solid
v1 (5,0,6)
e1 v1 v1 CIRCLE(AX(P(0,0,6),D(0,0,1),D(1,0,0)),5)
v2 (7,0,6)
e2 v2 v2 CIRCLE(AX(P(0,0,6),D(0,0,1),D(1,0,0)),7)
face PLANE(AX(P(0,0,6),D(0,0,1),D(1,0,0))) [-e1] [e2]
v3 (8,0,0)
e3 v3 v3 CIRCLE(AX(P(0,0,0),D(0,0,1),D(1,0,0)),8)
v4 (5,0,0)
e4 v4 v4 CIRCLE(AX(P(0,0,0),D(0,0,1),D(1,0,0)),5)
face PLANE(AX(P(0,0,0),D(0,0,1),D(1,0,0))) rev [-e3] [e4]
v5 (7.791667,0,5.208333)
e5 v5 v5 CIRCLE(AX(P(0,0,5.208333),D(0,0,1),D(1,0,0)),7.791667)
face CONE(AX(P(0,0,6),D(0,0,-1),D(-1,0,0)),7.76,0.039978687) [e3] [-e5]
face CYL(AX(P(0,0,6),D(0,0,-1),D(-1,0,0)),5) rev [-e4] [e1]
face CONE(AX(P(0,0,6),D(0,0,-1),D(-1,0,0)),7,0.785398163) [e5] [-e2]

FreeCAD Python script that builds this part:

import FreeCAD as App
import Part
import Sketcher

V = App.Vector


def edges_at(feature, points):
    """Names of the edges that pass closest to the given points."""
    edges = feature.Shape.Edges
    near = lambda p: min(range(len(edges)), key=lambda i: edges[i].distToShape(Part.Vertex(*p))[0])
    return sorted({f"Edge{near(p) + 1}" for p in points})

doc = App.newDocument("Part")
params = doc.addObject("Spreadsheet::Sheet", "Params")
for row, (alias, value) in enumerate([
    ("sketch1_diameter", "16 mm"),
    ("sketch1_diameter2", "10 mm"),
    ("pad1_length", "6 mm"),
    ("chamfer_size", "1 mm"),
    ("sketch2_height", "6 mm"),
    ("sketch2_width", "0.24 mm"),
    ("groove_angle", "360 deg"),
], start=1):
    params.set(f"A{row}", alias)
    params.set(f"B{row}", "=" + value)
    params.setAlias(f"B{row}", alias)

body = doc.addObject("PartDesign::Body", "Body")

# Sketch on XY plane
sketch1 = body.newObject("Sketcher::SketchObject", "Sketch")
sketch1.AttachmentSupport = (doc.getObject("XY_Plane"), [""])
sketch1.MapMode = "FlatFace"
sketch1.addGeometry(Part.Circle(V(0, 0, 0), V(0, 0, 1), 8), False)
sketch1.addGeometry(Part.Circle(V(0, 0, 0), V(0, 0, 1), 5), False)
sketch1.addConstraint(Sketcher.Constraint("Coincident", 0, 3, -1, 1))
sketch1.addConstraint(Sketcher.Constraint("Coincident", 1, 3, -1, 1))
sketch1.addConstraint(Sketcher.Constraint("Diameter", 0, 16.0))
sketch1.addConstraint(Sketcher.Constraint("Diameter", 1, 10.0))
sketch1.setExpression("Constraints[2]", "Params.sketch1_diameter")
sketch1.setExpression("Constraints[3]", "Params.sketch1_diameter2")
pad1 = body.newObject("PartDesign::Pad", "Pad")
pad1.Profile = sketch1
pad1.setExpression("Length", "Params.pad1_length")
doc.recompute()

chamfer = body.newObject("PartDesign::Chamfer", "Chamfer")
chamfer.Base = (pad1, edges_at(pad1, [(-8, 0, 6)]))
chamfer.setExpression("Size", "Params.chamfer_size")

# Sketch on YZ plane
sketch2 = body.newObject("Sketcher::SketchObject", "Sketch001")
sketch2.AttachmentSupport = (doc.getObject("YZ_Plane"), [""])
sketch2.MapMode = "FlatFace"
sketch2.addGeometry(Part.LineSegment(V(7.76, 6, 0), V(8, 0, 0)), False)
sketch2.addGeometry(Part.LineSegment(V(8, 0, 0), V(8, 6, 0)), False)
sketch2.addGeometry(Part.LineSegment(V(8, 6, 0), V(7.76, 6, 0)), False)
sketch2.addConstraint(Sketcher.Constraint("Coincident", 0, 2, 1, 1))
sketch2.addConstraint(Sketcher.Constraint("Coincident", 1, 2, 2, 1))
sketch2.addConstraint(Sketcher.Constraint("Coincident", 2, 2, 0, 1))
sketch2.addConstraint(Sketcher.Constraint("Vertical", 1))
sketch2.addConstraint(Sketcher.Constraint("Horizontal", 2))
sketch2.addConstraint(Sketcher.Constraint("PointOnObject", 0, 2, -1))
sketch2.addConstraint(Sketcher.Constraint("DistanceY", 1, 1, 1, 2, 6.0))
sketch2.addConstraint(Sketcher.Constraint("DistanceX", -1, 1, 0, 2, 8.0))
sketch2.addConstraint(Sketcher.Constraint("DistanceX", 2, 2, 2, 1, 0.24))
sketch2.setExpression("Constraints[6]", "Params.sketch2_height")
sketch2.setExpression("Constraints[8]", "Params.sketch2_width")
groove = body.newObject("PartDesign::Groove", "Groove")
groove.Profile = sketch2
groove.ReferenceAxis = (sketch2, ["V_Axis"])
groove.setExpression("Angle", "Params.groove_angle")

doc.recompute()
